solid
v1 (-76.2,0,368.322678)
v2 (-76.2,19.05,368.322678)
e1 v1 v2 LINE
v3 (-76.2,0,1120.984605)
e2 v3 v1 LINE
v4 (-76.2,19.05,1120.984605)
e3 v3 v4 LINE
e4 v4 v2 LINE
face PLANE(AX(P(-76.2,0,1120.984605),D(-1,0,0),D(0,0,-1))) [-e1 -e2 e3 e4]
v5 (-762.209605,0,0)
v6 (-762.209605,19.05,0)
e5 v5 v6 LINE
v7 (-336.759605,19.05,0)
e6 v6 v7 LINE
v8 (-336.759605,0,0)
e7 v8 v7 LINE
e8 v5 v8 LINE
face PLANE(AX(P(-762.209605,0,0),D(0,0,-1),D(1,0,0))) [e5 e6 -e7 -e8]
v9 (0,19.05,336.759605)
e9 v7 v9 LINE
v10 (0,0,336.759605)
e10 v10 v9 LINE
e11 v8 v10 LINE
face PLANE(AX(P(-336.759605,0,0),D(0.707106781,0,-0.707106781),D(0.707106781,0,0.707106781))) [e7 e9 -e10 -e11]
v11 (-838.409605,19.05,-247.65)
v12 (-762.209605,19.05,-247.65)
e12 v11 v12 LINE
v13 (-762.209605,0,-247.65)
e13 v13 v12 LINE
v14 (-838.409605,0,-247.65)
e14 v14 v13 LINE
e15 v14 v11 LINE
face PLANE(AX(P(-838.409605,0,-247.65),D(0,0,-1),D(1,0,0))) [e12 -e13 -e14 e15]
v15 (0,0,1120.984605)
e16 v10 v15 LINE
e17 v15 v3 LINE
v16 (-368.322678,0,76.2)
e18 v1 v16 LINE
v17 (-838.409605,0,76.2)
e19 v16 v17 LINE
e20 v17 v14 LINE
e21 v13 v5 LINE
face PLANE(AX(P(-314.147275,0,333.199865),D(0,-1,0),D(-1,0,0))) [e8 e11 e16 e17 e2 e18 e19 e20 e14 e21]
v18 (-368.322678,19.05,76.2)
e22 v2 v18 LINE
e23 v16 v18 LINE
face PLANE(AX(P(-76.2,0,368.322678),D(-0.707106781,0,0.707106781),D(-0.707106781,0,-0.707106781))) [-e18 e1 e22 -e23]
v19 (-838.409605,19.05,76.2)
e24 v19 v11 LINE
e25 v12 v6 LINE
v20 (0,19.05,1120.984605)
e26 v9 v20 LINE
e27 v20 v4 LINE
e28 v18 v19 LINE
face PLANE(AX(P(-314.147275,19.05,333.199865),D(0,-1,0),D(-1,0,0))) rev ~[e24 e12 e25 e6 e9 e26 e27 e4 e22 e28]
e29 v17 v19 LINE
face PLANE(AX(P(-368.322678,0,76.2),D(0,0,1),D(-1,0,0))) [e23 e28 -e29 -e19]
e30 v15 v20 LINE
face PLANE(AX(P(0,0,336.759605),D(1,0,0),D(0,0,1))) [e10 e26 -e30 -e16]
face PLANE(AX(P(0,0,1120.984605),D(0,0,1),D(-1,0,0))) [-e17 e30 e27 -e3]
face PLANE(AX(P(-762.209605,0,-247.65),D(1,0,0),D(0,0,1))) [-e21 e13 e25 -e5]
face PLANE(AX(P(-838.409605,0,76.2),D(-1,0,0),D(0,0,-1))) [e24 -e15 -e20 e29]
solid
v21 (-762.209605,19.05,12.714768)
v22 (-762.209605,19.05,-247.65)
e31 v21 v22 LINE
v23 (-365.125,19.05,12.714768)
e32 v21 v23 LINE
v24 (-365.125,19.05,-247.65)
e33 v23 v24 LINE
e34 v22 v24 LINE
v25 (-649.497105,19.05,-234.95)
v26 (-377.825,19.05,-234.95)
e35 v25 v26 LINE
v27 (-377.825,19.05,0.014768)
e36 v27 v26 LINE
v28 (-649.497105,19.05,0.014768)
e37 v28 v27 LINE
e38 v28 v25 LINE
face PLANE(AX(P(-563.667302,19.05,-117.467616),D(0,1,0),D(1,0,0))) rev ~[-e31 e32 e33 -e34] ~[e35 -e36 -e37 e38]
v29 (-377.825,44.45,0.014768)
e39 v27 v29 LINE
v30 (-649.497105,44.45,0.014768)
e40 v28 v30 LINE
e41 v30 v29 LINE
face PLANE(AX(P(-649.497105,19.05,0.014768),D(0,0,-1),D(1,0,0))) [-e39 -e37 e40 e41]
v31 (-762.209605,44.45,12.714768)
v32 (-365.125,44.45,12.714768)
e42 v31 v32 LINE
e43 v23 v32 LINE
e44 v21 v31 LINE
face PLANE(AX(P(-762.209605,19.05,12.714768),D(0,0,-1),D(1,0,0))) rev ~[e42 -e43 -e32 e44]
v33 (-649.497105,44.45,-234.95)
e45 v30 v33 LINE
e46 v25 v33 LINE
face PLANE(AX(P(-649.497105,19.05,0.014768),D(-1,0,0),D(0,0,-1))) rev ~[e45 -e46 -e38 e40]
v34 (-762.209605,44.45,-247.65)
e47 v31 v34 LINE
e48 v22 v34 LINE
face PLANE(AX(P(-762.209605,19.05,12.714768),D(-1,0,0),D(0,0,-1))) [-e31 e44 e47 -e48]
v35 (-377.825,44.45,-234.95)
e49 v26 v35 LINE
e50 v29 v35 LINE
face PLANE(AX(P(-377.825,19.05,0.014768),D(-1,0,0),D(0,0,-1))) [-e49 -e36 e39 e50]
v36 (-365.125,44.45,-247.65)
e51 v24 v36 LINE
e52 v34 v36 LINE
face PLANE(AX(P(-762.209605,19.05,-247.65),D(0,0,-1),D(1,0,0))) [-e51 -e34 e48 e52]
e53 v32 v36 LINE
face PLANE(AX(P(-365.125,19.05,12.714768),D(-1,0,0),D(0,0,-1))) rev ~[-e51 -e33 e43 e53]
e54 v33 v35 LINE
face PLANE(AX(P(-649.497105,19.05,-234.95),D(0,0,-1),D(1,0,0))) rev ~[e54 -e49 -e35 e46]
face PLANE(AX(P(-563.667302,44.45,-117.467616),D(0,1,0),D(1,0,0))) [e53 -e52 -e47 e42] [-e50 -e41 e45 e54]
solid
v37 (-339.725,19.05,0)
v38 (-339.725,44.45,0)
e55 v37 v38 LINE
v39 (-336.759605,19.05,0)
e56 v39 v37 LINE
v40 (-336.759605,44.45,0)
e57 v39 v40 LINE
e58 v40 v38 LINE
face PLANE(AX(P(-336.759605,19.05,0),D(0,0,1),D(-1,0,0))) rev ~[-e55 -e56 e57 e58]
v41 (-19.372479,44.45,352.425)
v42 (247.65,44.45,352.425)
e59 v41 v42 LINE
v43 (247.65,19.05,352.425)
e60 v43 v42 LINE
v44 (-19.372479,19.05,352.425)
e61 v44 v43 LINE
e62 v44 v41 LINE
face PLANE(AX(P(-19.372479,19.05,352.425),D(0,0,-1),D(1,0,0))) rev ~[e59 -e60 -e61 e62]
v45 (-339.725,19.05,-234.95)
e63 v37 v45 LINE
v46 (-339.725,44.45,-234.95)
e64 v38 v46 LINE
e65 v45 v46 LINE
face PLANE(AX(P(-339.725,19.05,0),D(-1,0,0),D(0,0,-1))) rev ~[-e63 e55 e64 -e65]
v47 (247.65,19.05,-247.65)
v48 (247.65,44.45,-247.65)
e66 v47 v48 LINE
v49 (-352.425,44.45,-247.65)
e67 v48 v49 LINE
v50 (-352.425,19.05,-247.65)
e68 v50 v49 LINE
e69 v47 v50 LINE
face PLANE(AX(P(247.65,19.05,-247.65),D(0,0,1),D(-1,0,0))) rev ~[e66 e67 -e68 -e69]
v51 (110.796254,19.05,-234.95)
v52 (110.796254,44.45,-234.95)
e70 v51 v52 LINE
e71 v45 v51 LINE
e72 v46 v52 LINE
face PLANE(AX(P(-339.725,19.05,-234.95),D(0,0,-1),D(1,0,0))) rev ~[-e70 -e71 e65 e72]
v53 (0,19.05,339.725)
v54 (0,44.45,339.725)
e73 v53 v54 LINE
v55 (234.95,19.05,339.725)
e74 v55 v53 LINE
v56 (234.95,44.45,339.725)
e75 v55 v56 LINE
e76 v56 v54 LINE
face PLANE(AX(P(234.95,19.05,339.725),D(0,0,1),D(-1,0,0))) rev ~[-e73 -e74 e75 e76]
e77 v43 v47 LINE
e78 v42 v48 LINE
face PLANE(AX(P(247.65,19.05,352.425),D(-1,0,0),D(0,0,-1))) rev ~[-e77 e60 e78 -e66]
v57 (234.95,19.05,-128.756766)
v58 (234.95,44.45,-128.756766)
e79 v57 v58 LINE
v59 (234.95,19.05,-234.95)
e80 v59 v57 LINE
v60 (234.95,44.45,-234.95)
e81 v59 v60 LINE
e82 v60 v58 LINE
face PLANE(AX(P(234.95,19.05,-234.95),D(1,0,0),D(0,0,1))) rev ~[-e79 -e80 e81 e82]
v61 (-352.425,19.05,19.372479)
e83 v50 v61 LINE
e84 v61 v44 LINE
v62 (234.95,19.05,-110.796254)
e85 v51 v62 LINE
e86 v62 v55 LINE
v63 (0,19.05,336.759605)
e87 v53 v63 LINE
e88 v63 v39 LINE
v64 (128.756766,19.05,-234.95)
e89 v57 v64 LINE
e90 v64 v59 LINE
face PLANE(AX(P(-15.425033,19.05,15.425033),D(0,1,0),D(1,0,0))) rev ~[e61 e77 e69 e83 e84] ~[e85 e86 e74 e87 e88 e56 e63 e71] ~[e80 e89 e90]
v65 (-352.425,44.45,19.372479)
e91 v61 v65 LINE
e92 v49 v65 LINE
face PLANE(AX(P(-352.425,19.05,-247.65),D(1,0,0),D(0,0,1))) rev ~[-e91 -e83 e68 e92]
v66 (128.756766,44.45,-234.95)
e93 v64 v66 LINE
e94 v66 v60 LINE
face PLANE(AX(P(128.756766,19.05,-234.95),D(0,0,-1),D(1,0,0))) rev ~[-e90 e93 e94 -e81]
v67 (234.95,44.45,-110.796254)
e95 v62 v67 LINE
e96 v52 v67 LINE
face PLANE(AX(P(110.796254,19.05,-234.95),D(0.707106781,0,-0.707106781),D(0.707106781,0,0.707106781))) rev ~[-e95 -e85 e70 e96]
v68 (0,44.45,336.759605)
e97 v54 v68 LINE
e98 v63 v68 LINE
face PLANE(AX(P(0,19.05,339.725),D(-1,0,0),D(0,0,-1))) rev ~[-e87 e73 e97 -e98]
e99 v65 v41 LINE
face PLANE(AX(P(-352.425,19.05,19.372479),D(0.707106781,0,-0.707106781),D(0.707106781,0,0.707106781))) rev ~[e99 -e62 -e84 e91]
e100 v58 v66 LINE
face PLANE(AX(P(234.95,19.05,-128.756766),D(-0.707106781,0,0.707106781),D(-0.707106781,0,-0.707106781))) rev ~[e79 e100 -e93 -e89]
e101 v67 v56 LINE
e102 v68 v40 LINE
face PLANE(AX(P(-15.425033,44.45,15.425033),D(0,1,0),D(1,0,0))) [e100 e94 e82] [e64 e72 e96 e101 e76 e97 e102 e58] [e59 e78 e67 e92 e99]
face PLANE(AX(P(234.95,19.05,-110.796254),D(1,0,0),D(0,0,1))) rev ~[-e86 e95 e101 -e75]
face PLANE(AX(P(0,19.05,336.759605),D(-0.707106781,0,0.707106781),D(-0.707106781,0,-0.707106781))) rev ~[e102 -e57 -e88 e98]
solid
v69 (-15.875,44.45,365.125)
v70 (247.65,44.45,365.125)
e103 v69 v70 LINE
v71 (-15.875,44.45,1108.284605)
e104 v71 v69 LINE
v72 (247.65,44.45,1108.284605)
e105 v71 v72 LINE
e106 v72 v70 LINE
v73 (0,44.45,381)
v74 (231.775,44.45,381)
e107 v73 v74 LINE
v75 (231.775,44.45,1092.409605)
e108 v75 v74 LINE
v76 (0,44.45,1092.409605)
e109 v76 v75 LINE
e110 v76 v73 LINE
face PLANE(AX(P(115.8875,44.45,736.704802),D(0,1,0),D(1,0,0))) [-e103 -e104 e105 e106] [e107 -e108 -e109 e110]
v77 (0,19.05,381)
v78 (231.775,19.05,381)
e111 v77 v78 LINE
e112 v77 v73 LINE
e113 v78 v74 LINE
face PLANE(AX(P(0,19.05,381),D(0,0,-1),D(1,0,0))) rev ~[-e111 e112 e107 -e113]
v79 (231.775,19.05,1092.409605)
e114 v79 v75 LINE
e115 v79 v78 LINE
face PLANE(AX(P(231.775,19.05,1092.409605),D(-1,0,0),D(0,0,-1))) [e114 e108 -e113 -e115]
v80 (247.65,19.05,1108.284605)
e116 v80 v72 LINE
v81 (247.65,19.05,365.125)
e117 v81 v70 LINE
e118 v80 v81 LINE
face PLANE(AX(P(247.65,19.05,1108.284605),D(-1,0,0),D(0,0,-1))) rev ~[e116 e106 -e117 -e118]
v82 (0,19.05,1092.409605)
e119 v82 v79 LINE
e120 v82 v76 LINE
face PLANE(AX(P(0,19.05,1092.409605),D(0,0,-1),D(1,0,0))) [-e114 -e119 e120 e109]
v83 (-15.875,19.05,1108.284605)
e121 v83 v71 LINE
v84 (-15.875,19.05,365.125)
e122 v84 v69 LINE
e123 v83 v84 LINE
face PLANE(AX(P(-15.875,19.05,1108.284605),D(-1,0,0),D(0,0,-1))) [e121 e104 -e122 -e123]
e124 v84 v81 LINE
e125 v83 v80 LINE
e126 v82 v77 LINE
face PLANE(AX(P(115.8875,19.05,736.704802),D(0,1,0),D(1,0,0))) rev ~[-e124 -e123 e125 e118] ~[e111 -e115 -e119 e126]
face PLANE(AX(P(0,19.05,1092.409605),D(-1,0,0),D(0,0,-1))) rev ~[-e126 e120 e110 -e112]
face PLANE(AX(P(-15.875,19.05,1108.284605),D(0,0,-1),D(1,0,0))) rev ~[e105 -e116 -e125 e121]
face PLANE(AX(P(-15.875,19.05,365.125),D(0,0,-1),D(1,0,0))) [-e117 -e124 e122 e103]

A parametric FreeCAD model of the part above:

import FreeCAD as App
import Part
import Sketcher

V = App.Vector
Q = App.Units.Quantity

doc = App.newDocument("Part")
body = doc.addObject("PartDesign::Body", "Body")

sketch1 = doc.addObject("Sketcher::SketchObject", "Sketch")
body.addObject(sketch1)
sketch1.AttachmentSupport = (doc.XZ_Plane, [""])
sketch1.MapMode = "FlatFace"
sketch1.addGeometry([
    Part.LineSegment(V(0, 337, 0), V(-337, 0, 0)),
    Part.LineSegment(V(-337, 0, 0), V(-762, 0, 0)),
    Part.LineSegment(V(-762, 0, 0), V(-762, -248, 0)),
    Part.LineSegment(V(-762, -248, 0), V(-838, -248, 0)),
    Part.LineSegment(V(-838, -248, 0), V(-838, 76, 0)),
    Part.LineSegment(V(-838, 76, 0), V(-368, 76, 0)),
    Part.LineSegment(V(-368, 76, 0), V(-76, 368, 0)),
    Part.LineSegment(V(-76, 368, 0), V(-76, 1121, 0)),
    Part.LineSegment(V(-76, 1121, 0), V(0, 1121, 0)),
    Part.LineSegment(V(0, 1121, 0), V(0, 337, 0)),
], False)
sketch1.addConstraint([
    Sketcher.Constraint("Coincident", 0, 2, 1, 1),
    Sketcher.Constraint("Coincident", 1, 2, 2, 1),
    Sketcher.Constraint("Coincident", 2, 2, 3, 1),
    Sketcher.Constraint("Coincident", 3, 2, 4, 1),
    Sketcher.Constraint("Coincident", 4, 2, 5, 1),
    Sketcher.Constraint("Coincident", 5, 2, 6, 1),
    Sketcher.Constraint("Coincident", 6, 2, 7, 1),
    Sketcher.Constraint("Coincident", 7, 2, 8, 1),
    Sketcher.Constraint("Coincident", 8, 2, 9, 1),
    Sketcher.Constraint("Coincident", 9, 2, 0, 1),
    Sketcher.Constraint("Horizontal", 1),
    Sketcher.Constraint("Vertical", 2),
    Sketcher.Constraint("Horizontal", 3),
    Sketcher.Constraint("Vertical", 4),
    Sketcher.Constraint("Horizontal", 5),
    Sketcher.Constraint("Vertical", 7),
    Sketcher.Constraint("Horizontal", 8),
    Sketcher.Constraint("Vertical", 9),
    Sketcher.Constraint("PointOnObject", 0, 2, -1),
    Sketcher.Constraint("PointOnObject", 8, 2, -2),
    Sketcher.Constraint("Parallel", 0, 6),
    Sketcher.Constraint("Equal", 3, 8),
    Sketcher.Constraint("DistanceX", 3, 2, 3, 1, Q("3 in")),
    Sketcher.Constraint("DistanceY", -1, 1, 4, 2, Q("3 in")),
    Sketcher.Constraint("Angle", 0, Q("-135 deg")),
    Sketcher.Constraint("DistanceX", 1, 2, 1, 1, Q("16.75 in")),
    Sketcher.Constraint("DistanceY", 2, 2, 2, 1, Q("9.75 in")),
    Sketcher.Constraint("Distance", 0, Q("18.75 in")),
    Sketcher.Constraint("DistanceY", 9, 2, 9, 1, Q("30.875 in")),
    Sketcher.Constraint("DistanceX", 5, 1, 5, 2, Q("470.086927 mm")),
])
pad1 = doc.addObject("PartDesign::Pad", "Pad")
body.addObject(pad1)
pad1.Profile = sketch1
pad1.Length = Q("0.75 in")
pad1.Reversed = True
body2 = doc.addObject("PartDesign::Body", "Body001")

sketch2 = doc.addObject("Sketcher::SketchObject", "Sketch001")
body2.addObject(sketch2)
sketch2.AttachmentSupport = (doc.getObject("XZ_Plane001"), [""])
sketch2.MapMode = "FlatFace"
sketch2.AttachmentOffset = App.Placement(V(0, 0, -0.75 * 25.4), App.Rotation())
sketch2.addGeometry([
    Part.LineSegment(V(-352.4, -247.7, 0), V(-352.4, 19.4, 0)),
    Part.LineSegment(V(-352.4, 19.4, 0), V(-19.4, 352.4, 0)),
    Part.LineSegment(V(-19.4, 352.4, 0), V(247.7, 352.4, 0)),
    Part.LineSegment(V(247.7, 352.4, 0), V(247.7, -247.7, 0)),
    Part.LineSegment(V(247.7, -247.7, 0), V(-352.4, -247.7, 0)),
    Part.LineSegment(V(-336.8, 0, 0), V(-339.7, 0, 0)),
    Part.LineSegment(V(-339.7, 0, 0), V(-339.7, -234.9, 0)),
    Part.LineSegment(V(-339.7, -234.9, 0), V(110.8, -234.9, 0)),
    Part.LineSegment(V(110.8, -234.9, 0), V(234.9, -110.8, 0)),
    Part.LineSegment(V(234.9, -110.8, 0), V(234.9, 339.7, 0)),
    Part.LineSegment(V(234.9, 339.7, 0), V(0, 339.7, 0)),
    Part.LineSegment(V(0, 339.7, 0), V(0, 336.8, 0)),
    Part.LineSegment(V(0, 336.8, 0), V(-336.8, 0, 0)),
    Part.LineSegment(V(234.9, -128.8, 0), V(128.8, -234.9, 0)),
    Part.LineSegment(V(128.8, -234.9, 0), V(234.9, -234.9, 0)),
    Part.LineSegment(V(234.9, -234.9, 0), V(234.9, -128.8, 0)),
], False)
sketch2.addConstraint([
    Sketcher.Constraint("Coincident", 0, 2, 1, 1),
    Sketcher.Constraint("Coincident", 1, 2, 2, 1),
    Sketcher.Constraint("Coincident", 2, 2, 3, 1),
    Sketcher.Constraint("Coincident", 3, 2, 4, 1),
    Sketcher.Constraint("Coincident", 4, 2, 0, 1),
    Sketcher.Constraint("Coincident", 5, 2, 6, 1),
    Sketcher.Constraint("Coincident", 6, 2, 7, 1),
    Sketcher.Constraint("Coincident", 7, 2, 8, 1),
    Sketcher.Constraint("Coincident", 8, 2, 9, 1),
    Sketcher.Constraint("Coincident", 9, 2, 10, 1),
    Sketcher.Constraint("Coincident", 10, 2, 11, 1),
    Sketcher.Constraint("Coincident", 11, 2, 12, 1),
    Sketcher.Constraint("Coincident", 12, 2, 5, 1),
    Sketcher.Constraint("Coincident", 13, 2, 14, 1),
    Sketcher.Constraint("Coincident", 14, 2, 15, 1),
    Sketcher.Constraint("Coincident", 15, 2, 13, 1),
    Sketcher.Constraint("Vertical", 0),
    Sketcher.Constraint("Horizontal", 2),
    Sketcher.Constraint("Vertical", 3),
    Sketcher.Constraint("Horizontal", 4),
    Sketcher.Constraint("Horizontal", 5),
    Sketcher.Constraint("Vertical", 6),
    Sketcher.Constraint("Horizontal", 7),
    Sketcher.Constraint("Vertical", 9),
    Sketcher.Constraint("Horizontal", 10),
    Sketcher.Constraint("Vertical", 11),
    Sketcher.Constraint("Horizontal", 14),
    Sketcher.Constraint("Vertical", 15),
    Sketcher.Constraint("PointOnObject", 5, 2, -1),
    Sketcher.Constraint("PointOnObject", 10, 2, -2),
    Sketcher.Constraint("Parallel", 1, 8),
    Sketcher.Constraint("Parallel", 8, 12),
    Sketcher.Constraint("Parallel", 12, 13),
    Sketcher.Constraint("Horizontal", 7, 2, 13, 2),
    Sketcher.Constraint("Vertical", 9, 2, 14, 2),
    Sketcher.Constraint("Equal", 2, 0),
    Sketcher.Constraint("Equal", 4, 3),
    Sketcher.Constraint("Equal", 10, 6),
    Sketcher.Constraint("Equal", 7, 9),
    Sketcher.Constraint("DistanceX", 10, 2, 10, 1, Q("9.25 in")),
    Sketcher.Constraint("DistanceX", 0, 2, 5, 2, Q("0.5 in")),
    Sketcher.Constraint("DistanceY", 4, 2, 6, 2, Q("0.5 in")),
    Sketcher.Constraint("DistanceX", 8, 2, 3, 2, Q("0.5 in")),
    Sketcher.Constraint("Distance", 12, Q("18.75 in")),
    Sketcher.Constraint("DistanceX", 4, 2, 4, 1, Q("23.625 in")),
    Sketcher.Constraint("DistanceX", 2, 1, 2, 2, Q("267.022479 mm")),
    Sketcher.Constraint("Distance", 8, Q("175.579911 mm")),
    Sketcher.Constraint("Distance", 13, Q("150.179911 mm")),
])
pad2 = doc.addObject("PartDesign::Pad", "Pad001")
body2.addObject(pad2)
pad2.Profile = sketch2
pad2.Length = Q("1 in")
pad2.Reversed = True
body3 = doc.addObject("PartDesign::Body", "Body002")

sketch3 = doc.addObject("Sketcher::SketchObject", "Sketch002")
body3.addObject(sketch3)
sketch3.AttachmentSupport = (doc.getObject("XZ_Plane002"), [""])
sketch3.MapMode = "FlatFace"
sketch3.AttachmentOffset = App.Placement(V(0, 0, -0.75 * 25.4), App.Rotation())
sketch3.addGeometry([
    Part.LineSegment(V(-762, -248, 0), V(-762, 13, 0)),
    Part.LineSegment(V(-762, 13, 0), V(-365, 13, 0)),
    Part.LineSegment(V(-365, 13, 0), V(-365, -248, 0)),
    Part.LineSegment(V(-365, -248, 0), V(-762, -248, 0)),
    Part.LineSegment(V(-378, 0, 0), V(-649, 0, 0)),
    Part.LineSegment(V(-649, 0, 0), V(-649, -235, 0)),
    Part.LineSegment(V(-649, -235, 0), V(-378, -235, 0)),
    Part.LineSegment(V(-378, -235, 0), V(-378, 0, 0)),
], False)
sketch3.addConstraint([
    Sketcher.Constraint("Coincident", 0, 2, 1, 1),
    Sketcher.Constraint("Coincident", 1, 2, 2, 1),
    Sketcher.Constraint("Coincident", 2, 2, 3, 1),
    Sketcher.Constraint("Coincident", 3, 2, 0, 1),
    Sketcher.Constraint("Coincident", 4, 2, 5, 1),
    Sketcher.Constraint("Coincident", 5, 2, 6, 1),
    Sketcher.Constraint("Coincident", 6, 2, 7, 1),
    Sketcher.Constraint("Coincident", 7, 2, 4, 1),
    Sketcher.Constraint("Vertical", 0),
    Sketcher.Constraint("Horizontal", 1),
    Sketcher.Constraint("Vertical", 2),
    Sketcher.Constraint("Horizontal", 3),
    Sketcher.Constraint("Horizontal", 4),
    Sketcher.Constraint("Vertical", 5),
    Sketcher.Constraint("Horizontal", 6),
    Sketcher.Constraint("Vertical", 7),
    Sketcher.Constraint("DistanceY", 4, 2, 0, 2, Q("0.5 in")),
    Sketcher.Constraint("DistanceY", 3, 2, 5, 2, Q("0.5 in")),
    Sketcher.Constraint("DistanceX", 6, 2, 2, 2, Q("0.5 in")),
    Sketcher.Constraint("DistanceY", 2, 2, -1, 1, Q("9.75 in")),
    Sketcher.Constraint("DistanceX", 1, 2, -1, 1, Q("14.375 in")),
    Sketcher.Constraint("DistanceX", 0, 2, 4, 2, Q("4.4375 in")),
    Sketcher.Constraint("DistanceX", 1, 1, 1, 2, Q("397.084605 mm")),
    Sketcher.Constraint("DistanceY", 0, 1, 0, 2, Q("260.364768 mm")),
])
pad3 = doc.addObject("PartDesign::Pad", "Pad002")
body3.addObject(pad3)
pad3.Profile = sketch3
pad3.Length = Q("1 in")
pad3.Reversed = True
body4 = doc.addObject("PartDesign::Body", "Body003")

sketch4 = doc.addObject("Sketcher::SketchObject", "Sketch003")
body4.addObject(sketch4)
sketch4.AttachmentSupport = (doc.getObject("XZ_Plane003"), [""])
sketch4.MapMode = "FlatFace"
sketch4.AttachmentOffset = App.Placement(V(0, 0, -0.75 * 25.4), App.Rotation())
sketch4.addGeometry([
    Part.LineSegment(V(-16, 365, 0), V(-16, 1108, 0)),
    Part.LineSegment(V(-16, 1108, 0), V(248, 1108, 0)),
    Part.LineSegment(V(248, 1108, 0), V(248, 365, 0)),
    Part.LineSegment(V(248, 365, 0), V(-16, 365, 0)),
    Part.LineSegment(V(232, 1092, 0), V(0, 1092, 0)),
    Part.LineSegment(V(0, 1092, 0), V(0, 381, 0)),
    Part.LineSegment(V(0, 381, 0), V(232, 381, 0)),
    Part.LineSegment(V(232, 381, 0), V(232, 1092, 0)),
], False)
sketch4.addConstraint([
    Sketcher.Constraint("Coincident", 0, 2, 1, 1),
    Sketcher.Constraint("Coincident", 1, 2, 2, 1),
    Sketcher.Constraint("Coincident", 2, 2, 3, 1),
    Sketcher.Constraint("Coincident", 3, 2, 0, 1),
    Sketcher.Constraint("Coincident", 4, 2, 5, 1),
    Sketcher.Constraint("Coincident", 5, 2, 6, 1),
    Sketcher.Constraint("Coincident", 6, 2, 7, 1),
    Sketcher.Constraint("Coincident", 7, 2, 4, 1),
    Sketcher.Constraint("Vertical", 0),
    Sketcher.Constraint("Horizontal", 1),
    Sketcher.Constraint("Vertical", 2),
    Sketcher.Constraint("Horizontal", 3),
    Sketcher.Constraint("Horizontal", 4),
    Sketcher.Constraint("Vertical", 5),
    Sketcher.Constraint("Horizontal", 6),
    Sketcher.Constraint("Vertical", 7),
    Sketcher.Constraint("PointOnObject", 4, 2, -2),
    Sketcher.Constraint("DistanceY", -1, 1, 5, 2, Q("15 in")),
    Sketcher.Constraint("DistanceX", 1, 1, 1, 2, Q("10.375 in")),
    Sketcher.Constraint("DistanceX", 4, 2, 4, 1, Q("9.125 in")),
    Sketcher.Constraint("DistanceX", -1, 1, 1, 2, Q("9.75 in")),
    Sketcher.Constraint("DistanceY", -1, 1, 2, 2, Q("14.375 in")),
    Sketcher.Constraint("DistanceY", 4, 2, 0, 2, Q("0.625 in")),
    Sketcher.Constraint("DistanceY", 0, 1, 0, 2, Q("743.159605 mm")),
])
pad4 = doc.addObject("PartDesign::Pad", "Pad003")
body4.addObject(pad4)
pad4.Profile = sketch4
pad4.Length = Q("1 in")
pad4.Reversed = True

doc.recompute()
